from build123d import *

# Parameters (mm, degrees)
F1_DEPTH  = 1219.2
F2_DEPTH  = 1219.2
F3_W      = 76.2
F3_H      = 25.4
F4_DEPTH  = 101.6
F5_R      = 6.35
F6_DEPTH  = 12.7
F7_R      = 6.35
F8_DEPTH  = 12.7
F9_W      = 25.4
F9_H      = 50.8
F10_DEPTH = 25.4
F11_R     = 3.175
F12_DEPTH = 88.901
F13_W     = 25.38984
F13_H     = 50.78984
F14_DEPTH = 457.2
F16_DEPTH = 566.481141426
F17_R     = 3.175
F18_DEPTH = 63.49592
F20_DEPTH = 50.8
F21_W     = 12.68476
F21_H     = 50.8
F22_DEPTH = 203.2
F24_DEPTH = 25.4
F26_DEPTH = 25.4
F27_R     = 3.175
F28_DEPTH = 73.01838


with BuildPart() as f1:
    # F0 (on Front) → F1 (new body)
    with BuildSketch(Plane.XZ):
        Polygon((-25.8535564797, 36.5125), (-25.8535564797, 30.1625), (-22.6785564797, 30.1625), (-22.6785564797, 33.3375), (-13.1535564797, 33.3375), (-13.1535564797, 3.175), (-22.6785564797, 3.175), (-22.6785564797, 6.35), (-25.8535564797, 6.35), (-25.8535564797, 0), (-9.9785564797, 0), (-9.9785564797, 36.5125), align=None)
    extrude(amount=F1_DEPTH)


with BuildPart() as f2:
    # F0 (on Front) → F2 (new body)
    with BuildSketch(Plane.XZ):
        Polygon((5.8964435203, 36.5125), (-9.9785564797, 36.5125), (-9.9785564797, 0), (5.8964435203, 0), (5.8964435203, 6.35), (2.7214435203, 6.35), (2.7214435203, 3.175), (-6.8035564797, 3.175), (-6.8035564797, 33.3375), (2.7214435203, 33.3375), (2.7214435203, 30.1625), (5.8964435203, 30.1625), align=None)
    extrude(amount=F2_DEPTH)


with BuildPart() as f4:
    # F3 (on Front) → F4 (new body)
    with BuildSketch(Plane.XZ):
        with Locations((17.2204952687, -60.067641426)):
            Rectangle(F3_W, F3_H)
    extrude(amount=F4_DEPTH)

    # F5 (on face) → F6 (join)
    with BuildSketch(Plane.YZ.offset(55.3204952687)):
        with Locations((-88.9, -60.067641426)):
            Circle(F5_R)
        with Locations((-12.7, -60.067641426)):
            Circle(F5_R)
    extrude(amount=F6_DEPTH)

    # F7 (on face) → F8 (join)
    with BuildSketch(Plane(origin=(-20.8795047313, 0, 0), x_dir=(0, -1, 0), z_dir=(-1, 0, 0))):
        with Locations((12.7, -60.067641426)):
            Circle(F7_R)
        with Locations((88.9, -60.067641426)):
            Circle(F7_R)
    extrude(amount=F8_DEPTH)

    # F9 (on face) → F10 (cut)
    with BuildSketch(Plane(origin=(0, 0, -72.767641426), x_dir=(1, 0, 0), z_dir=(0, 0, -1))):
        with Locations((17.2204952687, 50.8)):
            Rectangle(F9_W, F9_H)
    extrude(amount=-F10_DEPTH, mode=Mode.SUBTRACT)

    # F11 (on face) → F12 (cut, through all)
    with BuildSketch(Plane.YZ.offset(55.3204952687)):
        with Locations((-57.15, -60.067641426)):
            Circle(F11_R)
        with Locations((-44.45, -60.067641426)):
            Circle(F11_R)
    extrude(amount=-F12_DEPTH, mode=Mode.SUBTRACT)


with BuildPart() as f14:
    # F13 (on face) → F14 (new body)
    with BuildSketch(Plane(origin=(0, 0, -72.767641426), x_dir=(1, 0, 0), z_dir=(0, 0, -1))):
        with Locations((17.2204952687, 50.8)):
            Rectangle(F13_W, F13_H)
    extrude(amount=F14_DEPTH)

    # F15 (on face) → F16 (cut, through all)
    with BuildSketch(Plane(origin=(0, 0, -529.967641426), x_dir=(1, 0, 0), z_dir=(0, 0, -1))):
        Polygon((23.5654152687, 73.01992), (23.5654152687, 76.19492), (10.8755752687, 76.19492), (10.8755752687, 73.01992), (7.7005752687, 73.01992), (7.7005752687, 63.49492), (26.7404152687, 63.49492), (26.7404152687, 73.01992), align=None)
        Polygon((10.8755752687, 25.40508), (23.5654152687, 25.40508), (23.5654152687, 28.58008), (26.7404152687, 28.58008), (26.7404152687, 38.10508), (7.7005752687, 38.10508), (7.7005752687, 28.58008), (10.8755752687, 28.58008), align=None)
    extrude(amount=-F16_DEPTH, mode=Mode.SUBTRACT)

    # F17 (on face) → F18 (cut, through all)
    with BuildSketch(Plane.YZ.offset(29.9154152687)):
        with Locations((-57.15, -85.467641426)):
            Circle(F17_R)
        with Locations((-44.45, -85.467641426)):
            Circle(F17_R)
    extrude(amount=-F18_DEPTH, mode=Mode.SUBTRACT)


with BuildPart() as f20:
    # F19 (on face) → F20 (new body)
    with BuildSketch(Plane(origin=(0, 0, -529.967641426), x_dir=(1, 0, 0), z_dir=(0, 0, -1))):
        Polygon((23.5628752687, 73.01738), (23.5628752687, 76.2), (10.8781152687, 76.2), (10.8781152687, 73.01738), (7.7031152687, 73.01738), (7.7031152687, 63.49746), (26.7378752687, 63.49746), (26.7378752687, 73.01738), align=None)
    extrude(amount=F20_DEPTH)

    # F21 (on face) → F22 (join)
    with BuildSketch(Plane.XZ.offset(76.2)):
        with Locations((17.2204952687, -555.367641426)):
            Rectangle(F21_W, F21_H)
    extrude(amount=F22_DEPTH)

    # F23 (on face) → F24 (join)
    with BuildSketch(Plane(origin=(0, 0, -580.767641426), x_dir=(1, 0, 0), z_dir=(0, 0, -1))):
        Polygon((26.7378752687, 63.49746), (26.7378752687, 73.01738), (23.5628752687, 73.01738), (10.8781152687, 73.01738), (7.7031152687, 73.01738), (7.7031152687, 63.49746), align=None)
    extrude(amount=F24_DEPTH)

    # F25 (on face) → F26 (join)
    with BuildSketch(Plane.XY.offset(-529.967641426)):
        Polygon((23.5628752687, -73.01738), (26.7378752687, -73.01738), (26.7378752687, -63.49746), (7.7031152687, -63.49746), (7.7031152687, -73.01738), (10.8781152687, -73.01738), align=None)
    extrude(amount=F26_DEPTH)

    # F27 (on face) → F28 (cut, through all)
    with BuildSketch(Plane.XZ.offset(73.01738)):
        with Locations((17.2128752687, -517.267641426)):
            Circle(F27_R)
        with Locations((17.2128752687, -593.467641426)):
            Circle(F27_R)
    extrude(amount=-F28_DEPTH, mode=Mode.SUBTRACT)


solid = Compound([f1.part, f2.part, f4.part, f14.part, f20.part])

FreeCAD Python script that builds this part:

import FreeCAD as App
import Part
import Sketcher
Q = App.Units.Quantity


def add_polygon(sketch, points):
    """Adds a closed chain of lines whose ends are joined by coincident constraints."""
    first, n = sketch.GeometryCount, len(points)
    for a, b in zip(points, points[1:] + points[:1]):
        sketch.addGeometry(Part.LineSegment(App.Vector(*a, 0), App.Vector(*b, 0)), False)
    for i in range(n):
        sketch.addConstraint(Sketcher.Constraint("Coincident", first + i, 2, first + (i + 1) % n, 1))

doc = App.newDocument("Part")
params = doc.addObject("Spreadsheet::Sheet", "Params")
for row, (alias, value) in enumerate([
    ("sketch1_height", "0.25 in"),
    ("sketch1_width", "0.125 in"),
    ("sketch1_height2", "1.1875 in"),
    ("pad1_length", "48 in"),
    ("sketch2_height", "0.25 in"),
    ("sketch2_width", "0.625 in"),
    ("sketch2_height2", "1.4375 in"),
    ("pad2_length", "48 in"),
    ("sketch3_width", "3 in"),
    ("sketch3_height", "1 in"),
    ("pad3_length", "4 in"),
    ("sketch4_diameter", "0.5 in"),
    ("pad4_length", "0.5 in"),
    ("sketch5_diameter", "0.5 in"),
    ("pad5_length", "0.5 in"),
    ("sketch6_width", "1 in"),
    ("sketch6_height", "2 in"),
    ("pocket1_length", "1 in"),
    ("sketch7_diameter", "0.25 in"),
    ("pad6_length", "18 in"),
    ("sketch9_width", "0.125 in"),
    ("sketch10_diameter", "0.25 in"),
    ("sketch11_width", "0.125 in"),
    ("pad7_length", "2 in"),
    ("sketch12_height", "2 in"),
    ("pad8_length", "8 in"),
    ("pad9_length", "1 in"),
    ("pad10_length", "1 in"),
    ("sketch15_diameter", "0.25 in"),
], start=1):
    params.set(f"A{row}", alias)
    params.set(f"B{row}", "=" + value)
    params.setAlias(f"B{row}", alias)

body = doc.addObject("PartDesign::Body", "Body")

sketch1 = body.newObject("Sketcher::SketchObject", "Sketch")
sketch1.AttachmentSupport = (doc.getObject("XZ_Plane"), [""])
sketch1.MapMode = "FlatFace"
add_polygon(sketch1, [(-25.9, 36.5), (-25.9, 30.2), (-22.7, 30.2), (-22.7, 33.3), (-13.2, 33.3), (-13.2, 3.2), (-22.7, 3.2), (-22.7, 6.3), (-25.9, 6.3), (-25.9, 0), (-10, 0), (-10, 36.5)])
sketch1.addConstraint([
    Sketcher.Constraint("Vertical", 0),
    Sketcher.Constraint("Horizontal", 1),
    Sketcher.Constraint("Vertical", 2),
    Sketcher.Constraint("Horizontal", 3),
    Sketcher.Constraint("Vertical", 4),
    Sketcher.Constraint("Horizontal", 5),
    Sketcher.Constraint("Vertical", 6),
    Sketcher.Constraint("Horizontal", 7),
    Sketcher.Constraint("Vertical", 8),
    Sketcher.Constraint("Horizontal", 9),
    Sketcher.Constraint("Vertical", 10),
    Sketcher.Constraint("Horizontal", 11),
    Sketcher.Constraint("PointOnObject", 8, 2, -1),
    Sketcher.Constraint("Vertical", 2, 2, 5, 2),
    Sketcher.Constraint("Vertical", 0, 2, 7, 2),
    Sketcher.Constraint("Equal", 7, 2),
    Sketcher.Constraint("Equal", 2, 6),
    Sketcher.Constraint("Equal", 0, 8),
    Sketcher.Constraint("DistanceY", 0, 2, 0, 1, Q("0.25 in")),
    Sketcher.Constraint("DistanceX", 0, 2, 3, 2, Q("0.5 in")),
    Sketcher.Constraint("DistanceX", 5, 2, 9, 2, Q("0.5 in")),
    Sketcher.Constraint("DistanceX", 1, 1, 1, 2, Q("0.125 in")),
    Sketcher.Constraint("DistanceY", 4, 2, 4, 1, Q("1.1875 in")),
    Sketcher.Constraint("DistanceX", 0, 2, -1, 1, Q("25.853556 mm")),
])
sketch1.setExpression("Constraints[30]", "Params.sketch1_height")
sketch1.setExpression("Constraints[33]", "Params.sketch1_width")
sketch1.setExpression("Constraints[34]", "Params.sketch1_height2")
pad1 = body.newObject("PartDesign::Pad", "Pad")
pad1.Profile = sketch1
pad1.setExpression("Length", "Params.pad1_length")
body2 = doc.addObject("PartDesign::Body", "Body001")

sketch2 = body2.newObject("Sketcher::SketchObject", "Sketch001")
sketch2.AttachmentSupport = (doc.getObject("XZ_Plane001"), [""])
sketch2.MapMode = "FlatFace"
add_polygon(sketch2, [(5.9, 36.5), (-10, 36.5), (-10, 0), (5.9, 0), (5.9, 6.3), (2.7, 6.3), (2.7, 3.2), (-6.8, 3.2), (-6.8, 33.3), (2.7, 33.3), (2.7, 30.2), (5.9, 30.2)])
sketch2.addConstraint([
    Sketcher.Constraint("Horizontal", 0),
    Sketcher.Constraint("Vertical", 1),
    Sketcher.Constraint("Horizontal", 2),
    Sketcher.Constraint("Vertical", 3),
    Sketcher.Constraint("Horizontal", 4),
    Sketcher.Constraint("Vertical", 5),
    Sketcher.Constraint("Horizontal", 6),
    Sketcher.Constraint("Vertical", 7),
    Sketcher.Constraint("Horizontal", 8),
    Sketcher.Constraint("Vertical", 9),
    Sketcher.Constraint("Horizontal", 10),
    Sketcher.Constraint("Vertical", 11),
    Sketcher.Constraint("PointOnObject", 1, 2, -1),
    Sketcher.Constraint("Vertical", 5, 2, 8, 2),
    Sketcher.Constraint("Vertical", 3, 2, 10, 2),
    Sketcher.Constraint("Equal", 10, 5),
    Sketcher.Constraint("Equal", 5, 9),
    Sketcher.Constraint("Equal", 3, 11),
    Sketcher.Constraint("DistanceY", 3, 1, 3, 2, Q("0.25 in")),
    Sketcher.Constraint("DistanceX", 1, 2, 4, 2, Q("0.5 in")),
    Sketcher.Constraint("DistanceX", 6, 2, 2, 2, Q("0.5 in")),
    Sketcher.Constraint("DistanceX", 0, 2, 0, 1, Q("0.625 in")),
    Sketcher.Constraint("DistanceY", 1, 2, 1, 1, Q("1.4375 in")),
    Sketcher.Constraint("DistanceX", 0, 2, -1, 1, Q("9.978556 mm")),
])
sketch2.setExpression("Constraints[30]", "Params.sketch2_height")
sketch2.setExpression("Constraints[33]", "Params.sketch2_width")
sketch2.setExpression("Constraints[34]", "Params.sketch2_height2")
pad2 = body2.newObject("PartDesign::Pad", "Pad001")
pad2.Profile = sketch2
pad2.setExpression("Length", "Params.pad2_length")
body3 = doc.addObject("PartDesign::Body", "Body002")

sketch3 = body3.newObject("Sketcher::SketchObject", "Sketch002")
sketch3.AttachmentSupport = (doc.getObject("XZ_Plane002"), [""])
sketch3.MapMode = "FlatFace"
add_polygon(sketch3, [(-21, -47), (-21, -73), (55, -73), (55, -47)])
sketch3.addConstraint([
    Sketcher.Constraint("Vertical", 0),
    Sketcher.Constraint("Horizontal", 1),
    Sketcher.Constraint("Vertical", 2),
    Sketcher.Constraint("Horizontal", 3),
    Sketcher.Constraint("DistanceX", 1, 1, 1, 2, Q("3 in")),
    Sketcher.Constraint("DistanceY", 0, 2, 0, 1, Q("1 in")),
    Sketcher.Constraint("DistanceY", 0, 2, -1, 1, Q("72.767641 mm")),
    Sketcher.Constraint("DistanceX", 0, 2, -1, 1, Q("20.879505 mm")),
])
sketch3.setExpression("Constraints[8]", "Params.sketch3_width")
sketch3.setExpression("Constraints[9]", "Params.sketch3_height")
pad3 = body3.newObject("PartDesign::Pad", "Pad002")
pad3.Profile = sketch3
pad3.setExpression("Length", "Params.pad3_length")

sketch4 = body3.newObject("Sketcher::SketchObject", "Sketch003")
sketch4.AttachmentSupport = (doc.getObject("YZ_Plane002"), [""])
sketch4.MapMode = "FlatFace"
sketch4.AttachmentOffset = App.Placement(App.Vector(0, 0, 55.320495), App.Rotation())
sketch4.addGeometry([
    Part.Circle(App.Vector(-89, -60, 0), App.Vector(0, 0, 1), 6),
    Part.Circle(App.Vector(-13, -60, 0), App.Vector(0, 0, 1), 6),
], False)
sketch4.addConstraint([
    Sketcher.Constraint("Equal", 0, 1),
    Sketcher.Constraint("Horizontal", 0, 3, 1, 3),
    Sketcher.Constraint("Diameter", 0, Q("0.5 in")),
    Sketcher.Constraint("DistanceX", 0, 3, 1, 3, Q("3 in")),
    Sketcher.Constraint("DistanceX", 0, 3, -1, 1, Q("3.5 in")),
    Sketcher.Constraint("DistanceY", 0, 3, -1, 1, Q("60.067641 mm")),
])
sketch4.setExpression("Constraints[2]", "Params.sketch4_diameter")
pad4 = body3.newObject("PartDesign::Pad", "Pad003")
pad4.Profile = sketch4
pad4.setExpression("Length", "Params.pad4_length")

sketch5 = body3.newObject("Sketcher::SketchObject", "Sketch004")
sketch5.AttachmentSupport = (doc.getObject("YZ_Plane002"), [""])
sketch5.MapMode = "FlatFace"
sketch5.AttachmentOffset = App.Placement(App.Vector(0, 0, -20.879505), App.Rotation())
sketch5.addGeometry([
    Part.Circle(App.Vector(-13, -60, 0), App.Vector(0, 0, 1), 6),
    Part.Circle(App.Vector(-89, -60, 0), App.Vector(0, 0, 1), 6),
], False)
sketch5.addConstraint([
    Sketcher.Constraint("Equal", 0, 1),
    Sketcher.Constraint("Horizontal", 0, 3, 1, 3),
    Sketcher.Constraint("Diameter", 0, Q("0.5 in")),
    Sketcher.Constraint("DistanceX", 1, 3, 0, 3, Q("3 in")),
    Sketcher.Constraint("DistanceX", 0, 3, -1, 1, Q("0.5 in")),
    Sketcher.Constraint("DistanceY", 0, 3, -1, 1, Q("60.067641 mm")),
])
sketch5.setExpression("Constraints[2]", "Params.sketch5_diameter")
pad5 = body3.newObject("PartDesign::Pad", "Pad004")
pad5.Profile = sketch5
pad5.setExpression("Length", "Params.pad5_length")
pad5.Reversed = True

sketch6 = body3.newObject("Sketcher::SketchObject", "Sketch005")
sketch6.AttachmentSupport = (doc.getObject("XY_Plane002"), [""])
sketch6.MapMode = "FlatFace"
sketch6.AttachmentOffset = App.Placement(App.Vector(0, 0, -72.767641), App.Rotation())
add_polygon(sketch6, [(5, -76), (5, -25), (30, -25), (30, -76)])
sketch6.addConstraint([
    Sketcher.Constraint("Vertical", 0),
    Sketcher.Constraint("Horizontal", 1),
    Sketcher.Constraint("Vertical", 2),
    Sketcher.Constraint("Horizontal", 3),
    Sketcher.Constraint("DistanceX", 1, 1, 1, 2, Q("1 in")),
    Sketcher.Constraint("DistanceY", 0, 1, 0, 2, Q("2 in")),
    Sketcher.Constraint("DistanceY", 0, 2, -1, 1, Q("1 in")),
    Sketcher.Constraint("DistanceX", -1, 1, 0, 2, Q("4.520495 mm")),
])
sketch6.setExpression("Constraints[8]", "Params.sketch6_width")
sketch6.setExpression("Constraints[9]", "Params.sketch6_height")
pocket1 = body3.newObject("PartDesign::Pocket", "Pocket")
pocket1.Profile = sketch6
pocket1.setExpression("Length", "Params.pocket1_length")
pocket1.Reversed = True

sketch7 = body3.newObject("Sketcher::SketchObject", "Sketch006")
sketch7.AttachmentSupport = (doc.getObject("YZ_Plane002"), [""])
sketch7.MapMode = "FlatFace"
sketch7.AttachmentOffset = App.Placement(App.Vector(0, 0, 55.320495), App.Rotation())
sketch7.addGeometry([
    Part.Circle(App.Vector(-57.1, -60.1, 0), App.Vector(0, 0, 1), 3.2),
    Part.Circle(App.Vector(-44.5, -60.1, 0), App.Vector(0, 0, 1), 3.2),
], False)
sketch7.addConstraint([
    Sketcher.Constraint("Equal", 0, 1),
    Sketcher.Constraint("Horizontal", 0, 3, 1, 3),
    Sketcher.Constraint("Diameter", 0, Q("0.25 in")),
    Sketcher.Constraint("DistanceX", 0, 3, 1, 3, Q("0.5 in")),
    Sketcher.Constraint("DistanceX", 0, 3, -1, 1, Q("2.25 in")),
    Sketcher.Constraint("DistanceY", 0, 3, -1, 1, Q("60.067641 mm")),
])
sketch7.setExpression("Constraints[2]", "Params.sketch7_diameter")
pocket2 = body3.newObject("PartDesign::Pocket", "Pocket001")
pocket2.Profile = sketch7
pocket2.Type = "ThroughAll"
body4 = doc.addObject("PartDesign::Body", "Body003")

sketch8 = body4.newObject("Sketcher::SketchObject", "Sketch007")
sketch8.AttachmentSupport = (doc.getObject("XY_Plane003"), [""])
sketch8.MapMode = "FlatFace"
sketch8.AttachmentOffset = App.Placement(App.Vector(0, 0, -72.767641), App.Rotation())
add_polygon(sketch8, [(5, -76), (5, -25), (30, -25), (30, -76)])
sketch8.addConstraint([
    Sketcher.Constraint("Vertical", 0),
    Sketcher.Constraint("Horizontal", 1),
    Sketcher.Constraint("Vertical", 2),
    Sketcher.Constraint("Horizontal", 3),
    Sketcher.Constraint("DistanceX", 1, 1, 1, 2, Q("0.9996 in")),
    Sketcher.Constraint("DistanceY", 0, 1, 0, 2, Q("1.9996 in")),
    Sketcher.Constraint("DistanceY", 0, 2, -1, 1, Q("1.0002 in")),
    Sketcher.Constraint("DistanceX", -1, 1, 0, 2, Q("4.525575 mm")),
])
pad6 = body4.newObject("PartDesign::Pad", "Pad005")
pad6.Profile = sketch8
pad6.setExpression("Length", "Params.pad6_length")
pad6.Reversed = True

sketch9 = body4.newObject("Sketcher::SketchObject", "Sketch008")
sketch9.AttachmentSupport = (doc.getObject("XY_Plane003"), [""])
sketch9.MapMode = "FlatFace"
sketch9.AttachmentOffset = App.Placement(App.Vector(0, 0, -529.967641), App.Rotation())
add_polygon(sketch9, [(23.6, -73), (23.6, -76.2), (10.9, -76.2), (10.9, -73), (7.7, -73), (7.7, -63.5), (26.7, -63.5), (26.7, -73)])
add_polygon(sketch9, [(10.9, -25.4), (23.6, -25.4), (23.6, -28.6), (26.7, -28.6), (26.7, -38.1), (7.7, -38.1), (7.7, -28.6), (10.9, -28.6)])
sketch9.addConstraint([
    Sketcher.Constraint("Vertical", 0),
    Sketcher.Constraint("Horizontal", 1),
    Sketcher.Constraint("Vertical", 2),
    Sketcher.Constraint("Horizontal", 3),
    Sketcher.Constraint("Vertical", 4),
    Sketcher.Constraint("Horizontal", 5),
    Sketcher.Constraint("Vertical", 6),
    Sketcher.Constraint("Horizontal", 7),
    Sketcher.Constraint("Horizontal", 8),
    Sketcher.Constraint("Vertical", 9),
    Sketcher.Constraint("Horizontal", 10),
    Sketcher.Constraint("Vertical", 11),
    Sketcher.Constraint("Horizontal", 12),
    Sketcher.Constraint("Vertical", 13),
    Sketcher.Constraint("Horizontal", 14),
    Sketcher.Constraint("Vertical", 15),
    Sketcher.Constraint("Horizontal", 3, 2, 6, 2),
    Sketcher.Constraint("Horizontal", 10, 2, 13, 2),
    Sketcher.Constraint("Vertical", 7, 2, 8, 2),
    Sketcher.Constraint("Vertical", 6, 2, 10, 2),
    Sketcher.Constraint("Vertical", 4, 2, 12, 2),
    Sketcher.Constraint("Vertical", 2, 2, 14, 2),
    Sketcher.Constraint("Equal", 3, 7),
    Sketcher.Constraint("Equal", 14, 0),
    Sketcher.Constraint("Equal", 2, 9),
    Sketcher.Constraint("Equal", 6, 11),
    Sketcher.Constraint("DistanceY", 1, 2, 4, 2, Q("0.5 in")),
    Sketcher.Constraint("DistanceX", 3, 2, 3, 1, Q("0.125 in")),
    Sketcher.Constraint("DistanceX", 1, 2, 1, 1, Q("0.4996 in")),
    Sketcher.Constraint("DistanceY", 0, 2, -1, 1, Q("2.9998 in")),
    Sketcher.Constraint("DistanceY", 8, 2, -1, 1, Q("1.0002 in")),
    Sketcher.Constraint("DistanceX", -1, 1, 0, 2, Q("23.565415 mm")),
])
sketch9.setExpression("Constraints[43]", "Params.sketch9_width")
pocket3 = body4.newObject("PartDesign::Pocket", "Pocket002")
pocket3.Profile = sketch9
pocket3.Type = "ThroughAll"
pocket3.Reversed = True

sketch10 = body4.newObject("Sketcher::SketchObject", "Sketch009")
sketch10.AttachmentSupport = (doc.getObject("YZ_Plane003"), [""])
sketch10.MapMode = "FlatFace"
sketch10.AttachmentOffset = App.Placement(App.Vector(0, 0, 29.915415), App.Rotation())
sketch10.addGeometry([
    Part.Circle(App.Vector(-57.1, -85.5, 0), App.Vector(0, 0, 1), 3.2),
    Part.Circle(App.Vector(-44.5, -85.5, 0), App.Vector(0, 0, 1), 3.2),
], False)
sketch10.addConstraint([
    Sketcher.Constraint("Equal", 0, 1),
    Sketcher.Constraint("Horizontal", 0, 3, 1, 3),
    Sketcher.Constraint("Diameter", 0, Q("0.25 in")),
    Sketcher.Constraint("DistanceX", 0, 3, 1, 3, Q("0.5 in")),
    Sketcher.Constraint("DistanceX", 0, 3, -1, 1, Q("2.25 in")),
    Sketcher.Constraint("DistanceY", 0, 3, -1, 1, Q("85.467641 mm")),
])
sketch10.setExpression("Constraints[2]", "Params.sketch10_diameter")
pocket4 = body4.newObject("PartDesign::Pocket", "Pocket003")
pocket4.Profile = sketch10
pocket4.Type = "ThroughAll"
body5 = doc.addObject("PartDesign::Body", "Body004")

sketch11 = body5.newObject("Sketcher::SketchObject", "Sketch010")
sketch11.AttachmentSupport = (doc.getObject("XY_Plane004"), [""])
sketch11.MapMode = "FlatFace"
sketch11.AttachmentOffset = App.Placement(App.Vector(0, 0, -529.967641), App.Rotation())
add_polygon(sketch11, [(23.6, -73), (23.6, -76.2), (10.9, -76.2), (10.9, -73), (7.7, -73), (7.7, -63.5), (26.7, -63.5), (26.7, -73)])
sketch11.addConstraint([
    Sketcher.Constraint("Vertical", 0),
    Sketcher.Constraint("Horizontal", 1),
    Sketcher.Constraint("Vertical", 2),
    Sketcher.Constraint("Horizontal", 3),
    Sketcher.Constraint("Vertical", 4),
    Sketcher.Constraint("Horizontal", 5),
    Sketcher.Constraint("Vertical", 6),
    Sketcher.Constraint("Horizontal", 7),
    Sketcher.Constraint("Horizontal", 3, 2, 6, 2),
    Sketcher.Constraint("Equal", 3, 7),
    Sketcher.Constraint("DistanceY", 0, 2, -1, 1, Q("3 in")),
    Sketcher.Constraint("DistanceX", 3, 2, 3, 1, Q("0.125 in")),
    Sketcher.Constraint("DistanceX", 1, 2, 1, 1, Q("0.4994 in")),
    Sketcher.Constraint("DistanceY", 0, 2, 0, 1, Q("0.1253 in")),
    Sketcher.Constraint("DistanceY", 4, 1, 4, 2, Q("0.3748 in")),
    Sketcher.Constraint("DistanceX", -1, 1, 0, 2, Q("23.562875 mm")),
])
sketch11.setExpression("Constraints[19]", "Params.sketch11_width")
pad7 = body5.newObject("PartDesign::Pad", "Pad006")
pad7.Profile = sketch11
pad7.setExpression("Length", "Params.pad7_length")
pad7.Reversed = True

sketch12 = body5.newObject("Sketcher::SketchObject", "Sketch011")
sketch12.AttachmentSupport = (doc.getObject("XZ_Plane004"), [""])
sketch12.MapMode = "FlatFace"
sketch12.AttachmentOffset = App.Placement(App.Vector(0, 0, 3 * 25.4), App.Rotation())
add_polygon(sketch12, [(11, -530), (11, -581), (24, -581), (24, -530)])
sketch12.addConstraint([
    Sketcher.Constraint("Vertical", 0),
    Sketcher.Constraint("Horizontal", 1),
    Sketcher.Constraint("Vertical", 2),
    Sketcher.Constraint("Horizontal", 3),
    Sketcher.Constraint("DistanceY", 0, 2, 0, 1, Q("2 in")),
    Sketcher.Constraint("DistanceX", 1, 1, 1, 2, Q("0.4994 in")),
    Sketcher.Constraint("DistanceY", 0, 2, -1, 1, Q("580.767641 mm")),
    Sketcher.Constraint("DistanceX", -1, 1, 0, 2, Q("10.878115 mm")),
])
sketch12.setExpression("Constraints[8]", "Params.sketch12_height")
pad8 = body5.newObject("PartDesign::Pad", "Pad007")
pad8.Profile = sketch12
pad8.setExpression("Length", "Params.pad8_length")

sketch13 = body5.newObject("Sketcher::SketchObject", "Sketch012")
sketch13.AttachmentSupport = (doc.getObject("XY_Plane004"), [""])
sketch13.MapMode = "FlatFace"
sketch13.AttachmentOffset = App.Placement(App.Vector(0, 0, -580.767641), App.Rotation())
add_polygon(sketch13, [(27, -63), (27, -73), (8, -73), (8, -63)])
sketch13.addConstraint([
    Sketcher.Constraint("Vertical", 0),
    Sketcher.Constraint("Horizontal", 1),
    Sketcher.Constraint("Vertical", 2),
    Sketcher.Constraint("Horizontal", 3),
    Sketcher.Constraint("DistanceX", 1, 2, 1, 1, Q("0.7494 in")),
    Sketcher.Constraint("DistanceY", 0, 2, 0, 1, Q("0.3748 in")),
    Sketcher.Constraint("DistanceY", 0, 2, -1, 1, Q("2.8747 in")),
    Sketcher.Constraint("DistanceX", -1, 1, 0, 2, Q("26.737875 mm")),
])
pad9 = body5.newObject("PartDesign::Pad", "Pad008")
pad9.Profile = sketch13
pad9.setExpression("Length", "Params.pad9_length")
pad9.Reversed = True

sketch14 = body5.newObject("Sketcher::SketchObject", "Sketch013")
sketch14.AttachmentSupport = (doc.getObject("XY_Plane004"), [""])
sketch14.MapMode = "FlatFace"
sketch14.AttachmentOffset = App.Placement(App.Vector(0, 0, -529.967641), App.Rotation())
add_polygon(sketch14, [(27, -73), (27, -63), (8, -63), (8, -73)])
sketch14.addConstraint([
    Sketcher.Constraint("Vertical", 0),
    Sketcher.Constraint("Horizontal", 1),
    Sketcher.Constraint("Vertical", 2),
    Sketcher.Constraint("Horizontal", 3),
    Sketcher.Constraint("DistanceX", 1, 2, 1, 1, Q("0.7494 in")),
    Sketcher.Constraint("DistanceY", 0, 1, 0, 2, Q("0.3748 in")),
    Sketcher.Constraint("DistanceY", 0, 2, -1, 1, Q("2.4999 in")),
    Sketcher.Constraint("DistanceX", -1, 1, 0, 2, Q("26.737875 mm")),
])
pad10 = body5.newObject("PartDesign::Pad", "Pad009")
pad10.Profile = sketch14
pad10.setExpression("Length", "Params.pad10_length")

sketch15 = body5.newObject("Sketcher::SketchObject", "Sketch014")
sketch15.AttachmentSupport = (doc.getObject("XZ_Plane004"), [""])
sketch15.MapMode = "FlatFace"
sketch15.AttachmentOffset = App.Placement(App.Vector(0, 0, 2.8747 * 25.4), App.Rotation())
sketch15.addGeometry([
    Part.Circle(App.Vector(17.2, -517.3, 0), App.Vector(0, 0, 1), 3.2),
    Part.Circle(App.Vector(17.2, -593.5, 0), App.Vector(0, 0, 1), 3.2),
], False)
sketch15.addConstraint([
    Sketcher.Constraint("Equal", 0, 1),
    Sketcher.Constraint("Vertical", 0, 3, 1, 3),
    Sketcher.Constraint("Diameter", 0, Q("0.25 in")),
    Sketcher.Constraint("DistanceY", 1, 3, 0, 3, Q("3 in")),
    Sketcher.Constraint("DistanceY", 0, 3, -1, 1, Q("517.267641 mm")),
    Sketcher.Constraint("DistanceX", -1, 1, 0, 3, Q("17.212875 mm")),
])
sketch15.setExpression("Constraints[2]", "Params.sketch15_diameter")
pocket5 = body5.newObject("PartDesign::Pocket", "Pocket004")
pocket5.Profile = sketch15
pocket5.Type = "ThroughAll"

doc.recompute()
